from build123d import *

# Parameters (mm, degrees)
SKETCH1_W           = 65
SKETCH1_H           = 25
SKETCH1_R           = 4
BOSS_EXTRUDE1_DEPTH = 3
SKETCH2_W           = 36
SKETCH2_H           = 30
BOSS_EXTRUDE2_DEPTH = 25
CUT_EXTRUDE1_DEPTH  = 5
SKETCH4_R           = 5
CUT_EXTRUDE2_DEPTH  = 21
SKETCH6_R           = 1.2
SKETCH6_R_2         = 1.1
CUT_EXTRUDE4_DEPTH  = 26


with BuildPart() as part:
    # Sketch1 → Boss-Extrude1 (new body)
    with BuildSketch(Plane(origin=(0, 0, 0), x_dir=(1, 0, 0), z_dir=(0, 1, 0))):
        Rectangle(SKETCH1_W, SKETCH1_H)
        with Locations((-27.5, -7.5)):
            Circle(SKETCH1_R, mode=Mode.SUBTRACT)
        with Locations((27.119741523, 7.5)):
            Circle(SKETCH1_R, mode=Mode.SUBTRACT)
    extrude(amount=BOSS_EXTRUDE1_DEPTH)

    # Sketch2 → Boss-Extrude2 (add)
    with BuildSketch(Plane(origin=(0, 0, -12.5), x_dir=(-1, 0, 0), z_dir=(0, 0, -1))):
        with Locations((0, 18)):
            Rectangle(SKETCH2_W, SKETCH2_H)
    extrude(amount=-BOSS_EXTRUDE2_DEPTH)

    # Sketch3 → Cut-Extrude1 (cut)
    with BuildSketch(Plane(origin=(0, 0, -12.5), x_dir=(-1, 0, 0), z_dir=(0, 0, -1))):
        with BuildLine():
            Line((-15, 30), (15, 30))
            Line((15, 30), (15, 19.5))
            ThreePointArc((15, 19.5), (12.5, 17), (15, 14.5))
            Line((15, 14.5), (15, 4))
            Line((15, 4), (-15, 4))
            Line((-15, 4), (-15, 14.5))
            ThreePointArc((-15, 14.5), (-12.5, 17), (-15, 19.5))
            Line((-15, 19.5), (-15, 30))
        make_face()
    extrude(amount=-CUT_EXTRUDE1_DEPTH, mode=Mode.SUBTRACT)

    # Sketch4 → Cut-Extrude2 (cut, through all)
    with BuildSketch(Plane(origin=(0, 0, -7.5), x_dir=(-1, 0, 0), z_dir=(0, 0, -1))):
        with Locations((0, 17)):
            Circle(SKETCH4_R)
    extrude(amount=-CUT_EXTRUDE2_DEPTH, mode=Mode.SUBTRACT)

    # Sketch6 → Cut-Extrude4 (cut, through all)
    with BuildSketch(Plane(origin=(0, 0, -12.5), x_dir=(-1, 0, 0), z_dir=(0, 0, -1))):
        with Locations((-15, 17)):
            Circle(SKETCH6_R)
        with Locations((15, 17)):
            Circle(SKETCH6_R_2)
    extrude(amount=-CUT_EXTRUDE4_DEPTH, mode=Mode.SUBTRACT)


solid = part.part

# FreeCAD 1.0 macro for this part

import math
import FreeCAD as App
import Part
import Sketcher

V = App.Vector
Q = App.Units.Quantity

doc = App.newDocument("Part")
body = doc.addObject("PartDesign::Body", "Body")

sketch1 = body.newObject("Sketcher::SketchObject", "Sketch")
sketch1.AttachmentSupport = (doc.getObject("XZ_Plane"), [""])
sketch1.MapMode = "FlatFace"
sketch1.addGeometry([
    Part.LineSegment(V(-32.5, -12.5, 0), V(-32.5, 12.5, 0)),
    Part.LineSegment(V(-32.5, 12.5, 0), V(32.5, 12.5, 0)),
    Part.LineSegment(V(32.5, 12.5, 0), V(32.5, -12.5, 0)),
    Part.LineSegment(V(32.5, -12.5, 0), V(-32.5, -12.5, 0)),
    Part.Circle(V(-27.5, 7.5, 0), V(0, 0, 1), 4),
    Part.Circle(V(27.1, -7.5, 0), V(0, 0, 1), 4),
], False)
sketch1.addConstraint([
    Sketcher.Constraint("Coincident", 0, 2, 1, 1),
    Sketcher.Constraint("Coincident", 1, 2, 2, 1),
    Sketcher.Constraint("Coincident", 2, 2, 3, 1),
    Sketcher.Constraint("Coincident", 3, 2, 0, 1),
    Sketcher.Constraint("Vertical", 0),
    Sketcher.Constraint("Horizontal", 1),
    Sketcher.Constraint("Vertical", 2),
    Sketcher.Constraint("Horizontal", 3),
    Sketcher.Constraint("Equal", 4, 5),
    Sketcher.Constraint("Symmetric", 0, 2, 2, 2, -1, 1),
    Sketcher.Constraint("Diameter", 4, Q("8 mm")),
    Sketcher.Constraint("DistanceX", 1, 1, 1, 2, Q("65 mm")),
    Sketcher.Constraint("DistanceY", 0, 1, 0, 2, Q("25 mm")),
    Sketcher.Constraint("DistanceY", 5, 3, 4, 3, Q("15 mm")),
    Sketcher.Constraint("DistanceX", 0, 2, 4, 3, Q("5 mm")),
    Sketcher.Constraint("DistanceY", 4, 3, 0, 2, Q("5 mm")),
    Sketcher.Constraint("DistanceX", -1, 1, 5, 3, Q("27.119742 mm")),
])
pad1 = body.newObject("PartDesign::Pad", "Pad")
pad1.Profile = sketch1
pad1.Length = 3
pad1.Reversed = True

sketch2 = body.newObject("Sketcher::SketchObject", "Sketch001")
sketch2.AttachmentSupport = (doc.getObject("XY_Plane"), [""])
sketch2.MapMode = "FlatFace"
sketch2.AttachmentOffset = App.Placement(V(0, 0, -12.5), App.Rotation())
sketch2.addGeometry([
    Part.LineSegment(V(18, 33, 0), V(18, 3, 0)),
    Part.LineSegment(V(18, 3, 0), V(-18, 3, 0)),
    Part.LineSegment(V(-18, 3, 0), V(-18, 33, 0)),
    Part.LineSegment(V(-18, 33, 0), V(18, 33, 0)),
], False)
sketch2.addConstraint([
    Sketcher.Constraint("Coincident", 0, 2, 1, 1),
    Sketcher.Constraint("Coincident", 1, 2, 2, 1),
    Sketcher.Constraint("Coincident", 2, 2, 3, 1),
    Sketcher.Constraint("Coincident", 3, 2, 0, 1),
    Sketcher.Constraint("Vertical", 0),
    Sketcher.Constraint("Horizontal", 1),
    Sketcher.Constraint("Vertical", 2),
    Sketcher.Constraint("Horizontal", 3),
    Sketcher.Constraint("DistanceX", 1, 2, 1, 1, Q("36 mm")),
    Sketcher.Constraint("DistanceY", 0, 2, 0, 1, Q("30 mm")),
    Sketcher.Constraint("DistanceX", -1, 1, 0, 2, Q("18 mm")),
    Sketcher.Constraint("DistanceY", -1, 1, 0, 2, Q("3 mm")),
])
pad2 = body.newObject("PartDesign::Pad", "Pad001")
pad2.Profile = sketch2
pad2.Length = 25

sketch3 = body.newObject("Sketcher::SketchObject", "Sketch002")
sketch3.AttachmentSupport = (doc.getObject("XY_Plane"), [""])
sketch3.MapMode = "FlatFace"
sketch3.AttachmentOffset = App.Placement(V(0, 0, -12.5), App.Rotation())
sketch3.addGeometry([
    Part.LineSegment(V(-15, 30, 0), V(15, 30, 0)),
    Part.LineSegment(V(15, 30, 0), V(15, 19.5, 0)),
    Part.ArcOfCircle(Part.Circle(V(15, 17, 0), V(0, 0, 1), 2.5), math.radians(90), math.radians(270)),
    Part.LineSegment(V(15, 14.5, 0), V(15, 4, 0)),
    Part.LineSegment(V(15, 4, 0), V(-15, 4, 0)),
    Part.LineSegment(V(-15, 4, 0), V(-15, 14.5, 0)),
    Part.ArcOfCircle(Part.Circle(V(-15, 17, 0), V(0, 0, 1), 2.5), math.radians(-90), math.radians(90)),
    Part.LineSegment(V(-15, 19.5, 0), V(-15, 30, 0)),
], False)
sketch3.addConstraint([
    Sketcher.Constraint("Coincident", 0, 2, 1, 1),
    Sketcher.Constraint("Coincident", 1, 2, 2, 1),
    Sketcher.Constraint("Coincident", 2, 2, 3, 1),
    Sketcher.Constraint("Coincident", 3, 2, 4, 1),
    Sketcher.Constraint("Coincident", 4, 2, 5, 1),
    Sketcher.Constraint("Coincident", 5, 2, 6, 1),
    Sketcher.Constraint("Coincident", 6, 2, 7, 1),
    Sketcher.Constraint("Coincident", 7, 2, 0, 1),
    Sketcher.Constraint("Horizontal", 0),
    Sketcher.Constraint("Vertical", 1),
    Sketcher.Constraint("Vertical", 3),
    Sketcher.Constraint("Horizontal", 4),
    Sketcher.Constraint("Vertical", 5),
    Sketcher.Constraint("Vertical", 7),
    Sketcher.Constraint("Equal", 2, 6),
    Sketcher.Constraint("Symmetric", 2, 3, 6, 3, -2),
    Sketcher.Constraint("Vertical", 2, 3, 0, 2),
    Sketcher.Constraint("Vertical", 1, 2, 2, 2),
    Sketcher.Constraint("Vertical", 6, 3, 4, 2),
    Sketcher.Constraint("Vertical", 5, 2, 6, 2),
    Sketcher.Constraint("Equal", 1, 3),
    Sketcher.Constraint("Radius", 2, Q("2.5 mm")),
    Sketcher.Constraint("DistanceX", 0, 1, 0, 2, Q("30 mm")),
    Sketcher.Constraint("DistanceY", 1, 2, 1, 1, Q("10.5 mm")),
    Sketcher.Constraint("DistanceY", -1, 1, 2, 3, Q("17 mm")),
])
pocket1 = body.newObject("PartDesign::Pocket", "Pocket")
pocket1.Profile = sketch3
pocket1.Length = 5
pocket1.Reversed = True

sketch4 = body.newObject("Sketcher::SketchObject", "Sketch003")
sketch4.AttachmentSupport = (doc.getObject("XY_Plane"), [""])
sketch4.MapMode = "FlatFace"
sketch4.AttachmentOffset = App.Placement(V(0, 0, -7.5), App.Rotation())
sketch4.addGeometry(Part.Circle(V(0, 17, 0), V(0, 0, 1), 5), False)
sketch4.addConstraint([
    Sketcher.Constraint("PointOnObject", 0, 3, -2),
    Sketcher.Constraint("Diameter", 0, Q("10 mm")),
    Sketcher.Constraint("DistanceY", -1, 1, 0, 3, Q("17 mm")),
])
pocket2 = body.newObject("PartDesign::Pocket", "Pocket001")
pocket2.Profile = sketch4
pocket2.Type = "ThroughAll"
pocket2.Reversed = True

sketch5 = body.newObject("Sketcher::SketchObject", "Sketch004")
sketch5.AttachmentSupport = (doc.getObject("XY_Plane"), [""])
sketch5.MapMode = "FlatFace"
sketch5.AttachmentOffset = App.Placement(V(0, 0, -12.5), App.Rotation())
sketch5.addGeometry([
    Part.Circle(V(15, 17, 0), V(0, 0, 1), 1.2),
    Part.Circle(V(-15, 17, 0), V(0, 0, 1), 1.1),
], False)
sketch5.addConstraint([
    Sketcher.Constraint("Symmetric", 0, 3, 1, 3, -2),
    Sketcher.Constraint("Diameter", 0, Q("2.4 mm")),
    Sketcher.Constraint("Diameter", 1, Q("2.2 mm")),
    Sketcher.Constraint("DistanceX", -1, 1, 0, 3, Q("15 mm")),
    Sketcher.Constraint("DistanceY", -1, 1, 0, 3, Q("17 mm")),
])
pocket3 = body.newObject("PartDesign::Pocket", "Pocket002")
pocket3.Profile = sketch5
pocket3.Type = "ThroughAll"
pocket3.Reversed = True

doc.recompute()
